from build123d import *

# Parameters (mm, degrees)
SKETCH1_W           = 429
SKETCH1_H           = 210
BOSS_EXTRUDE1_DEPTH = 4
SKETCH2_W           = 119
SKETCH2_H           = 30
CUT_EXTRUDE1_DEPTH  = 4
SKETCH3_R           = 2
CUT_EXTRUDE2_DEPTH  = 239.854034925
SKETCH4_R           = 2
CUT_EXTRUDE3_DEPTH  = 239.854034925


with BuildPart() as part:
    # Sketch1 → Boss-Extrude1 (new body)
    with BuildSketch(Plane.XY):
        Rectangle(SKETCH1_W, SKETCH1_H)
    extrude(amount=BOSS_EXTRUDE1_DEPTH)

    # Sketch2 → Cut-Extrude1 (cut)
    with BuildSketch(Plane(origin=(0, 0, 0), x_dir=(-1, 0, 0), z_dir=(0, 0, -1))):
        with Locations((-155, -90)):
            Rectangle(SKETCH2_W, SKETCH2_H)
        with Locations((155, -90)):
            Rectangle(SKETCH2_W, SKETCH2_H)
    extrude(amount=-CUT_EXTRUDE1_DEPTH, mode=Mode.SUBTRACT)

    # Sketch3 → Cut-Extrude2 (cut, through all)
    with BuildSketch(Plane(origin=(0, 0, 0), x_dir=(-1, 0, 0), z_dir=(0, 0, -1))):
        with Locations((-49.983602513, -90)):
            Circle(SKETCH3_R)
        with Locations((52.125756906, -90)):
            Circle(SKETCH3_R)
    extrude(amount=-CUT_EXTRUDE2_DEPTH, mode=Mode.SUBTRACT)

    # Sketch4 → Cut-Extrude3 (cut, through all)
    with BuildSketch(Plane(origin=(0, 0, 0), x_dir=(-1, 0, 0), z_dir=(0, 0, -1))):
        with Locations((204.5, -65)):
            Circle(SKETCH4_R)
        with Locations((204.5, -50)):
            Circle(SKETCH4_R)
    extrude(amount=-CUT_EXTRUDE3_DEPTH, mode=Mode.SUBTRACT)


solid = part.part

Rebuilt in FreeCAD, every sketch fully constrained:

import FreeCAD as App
import Part
import Sketcher

V = App.Vector


def add_polygon(sketch, points):
    """Adds a closed chain of lines whose ends are joined by coincident constraints."""
    first, n = sketch.GeometryCount, len(points)
    for a, b in zip(points, points[1:] + points[:1]):
        sketch.addGeometry(Part.LineSegment(App.Vector(*a, 0), App.Vector(*b, 0)), False)
    for i in range(n):
        sketch.addConstraint(Sketcher.Constraint("Coincident", first + i, 2, first + (i + 1) % n, 1))

doc = App.newDocument("Part")
body = doc.addObject("PartDesign::Body", "Body")

# Sketch on XY plane
sketch1 = doc.addObject("Sketcher::SketchObject", "Sketch")
body.addObject(sketch1)
sketch1.AttachmentSupport = (doc.XY_Plane, [""])
sketch1.MapMode = "FlatFace"
add_polygon(sketch1, [(-214, 105), (-214, -105), (214, -105), (214, 105)])  # lines 0-3
sketch1.addConstraint([
    Sketcher.Constraint("Vertical", 0),
    Sketcher.Constraint("Horizontal", 1),
    Sketcher.Constraint("Vertical", 2),
    Sketcher.Constraint("Horizontal", 3),
    Sketcher.Constraint("Symmetric", 0, 2, 2, 2, -1, 1),
    Sketcher.Constraint("DistanceX", 1, 1, 1, 2, 429.0),
    Sketcher.Constraint("DistanceY", 0, 2, 0, 1, 210.0),
])
pad1 = doc.addObject("PartDesign::Pad", "Pad")
body.addObject(pad1)
pad1.Profile = sketch1
pad1.Length = 4

# Sketch on XY plane
sketch2 = doc.addObject("Sketcher::SketchObject", "Sketch001")
body.addObject(sketch2)
sketch2.AttachmentSupport = (doc.XY_Plane, [""])
sketch2.MapMode = "FlatFace"
add_polygon(sketch2, [(214, -75), (214, -105), (96, -105), (96, -75)])  # lines 0-3
add_polygon(sketch2, [(-96, -75), (-96, -105), (-214, -105), (-214, -75)])  # lines 4-7
sketch2.addConstraint([
    Sketcher.Constraint("Vertical", 0),
    Sketcher.Constraint("Horizontal", 1),
    Sketcher.Constraint("Vertical", 2),
    Sketcher.Constraint("Horizontal", 3),
    Sketcher.Constraint("Vertical", 4),
    Sketcher.Constraint("Horizontal", 5),
    Sketcher.Constraint("Vertical", 6),
    Sketcher.Constraint("Horizontal", 7),
    Sketcher.Constraint("Symmetric", 1, 2, 4, 2, -2),
    Sketcher.Constraint("Symmetric", 3, 2, 6, 2, -2),
    Sketcher.Constraint("DistanceX", 1, 2, 1, 1, 119.0),
    Sketcher.Constraint("DistanceY", 0, 2, 0, 1, 30.0),
    Sketcher.Constraint("DistanceY", 0, 2, -1, 1, 105.0),
    Sketcher.Constraint("DistanceX", 4, 2, 1, 2, 191.0),
])
pocket1 = doc.addObject("PartDesign::Pocket", "Pocket")
body.addObject(pocket1)
pocket1.Profile = sketch2
pocket1.Length = 4
pocket1.Reversed = True

# Sketch on XY plane
sketch3 = doc.addObject("Sketcher::SketchObject", "Sketch002")
body.addObject(sketch3)
sketch3.AttachmentSupport = (doc.XY_Plane, [""])
sketch3.MapMode = "FlatFace"
sketch3.addGeometry([
    Part.Circle(V(50, -90, 0), V(0, 0, 1), 2),
    Part.Circle(V(-52.1, -90, 0), V(0, 0, 1), 2),
], False)
sketch3.addConstraint([
    Sketcher.Constraint("Equal", 0, 1),
    Sketcher.Constraint("Horizontal", 0, 3, 1, 3),
    Sketcher.Constraint("Diameter", 0, 4.0),
    Sketcher.Constraint("DistanceY", 0, 3, -1, 1, 90.0),
    Sketcher.Constraint("DistanceX", 1, 3, 0, 3, 102.109359),
    Sketcher.Constraint("DistanceX", -1, 1, 0, 3, 49.983603),
])
pocket2 = doc.addObject("PartDesign::Pocket", "Pocket001")
body.addObject(pocket2)
pocket2.Profile = sketch3
pocket2.Type = "ThroughAll"
pocket2.Reversed = True

# Sketch on XY plane
sketch4 = doc.addObject("Sketcher::SketchObject", "Sketch003")
body.addObject(sketch4)
sketch4.AttachmentSupport = (doc.XY_Plane, [""])
sketch4.MapMode = "FlatFace"
sketch4.addGeometry([
    Part.Circle(V(-204.5, -65, 0), V(0, 0, 1), 2),
    Part.Circle(V(-204.5, -50, 0), V(0, 0, 1), 2),
], False)
sketch4.addConstraint([
    Sketcher.Constraint("Equal", 0, 1),
    Sketcher.Constraint("Vertical", 0, 3, 1, 3),
    Sketcher.Constraint("Diameter", 0, 4.0),
    Sketcher.Constraint("DistanceY", 0, 3, -1, 1, 65.0),
    Sketcher.Constraint("DistanceY", 1, 3, -1, 1, 50.0),
    Sketcher.Constraint("DistanceX", 0, 3, -1, 1, 204.5),
])
pocket3 = doc.addObject("PartDesign::Pocket", "Pocket002")
body.addObject(pocket3)
pocket3.Profile = sketch4
pocket3.Type = "ThroughAll"
pocket3.Reversed = True

doc.recompute()
